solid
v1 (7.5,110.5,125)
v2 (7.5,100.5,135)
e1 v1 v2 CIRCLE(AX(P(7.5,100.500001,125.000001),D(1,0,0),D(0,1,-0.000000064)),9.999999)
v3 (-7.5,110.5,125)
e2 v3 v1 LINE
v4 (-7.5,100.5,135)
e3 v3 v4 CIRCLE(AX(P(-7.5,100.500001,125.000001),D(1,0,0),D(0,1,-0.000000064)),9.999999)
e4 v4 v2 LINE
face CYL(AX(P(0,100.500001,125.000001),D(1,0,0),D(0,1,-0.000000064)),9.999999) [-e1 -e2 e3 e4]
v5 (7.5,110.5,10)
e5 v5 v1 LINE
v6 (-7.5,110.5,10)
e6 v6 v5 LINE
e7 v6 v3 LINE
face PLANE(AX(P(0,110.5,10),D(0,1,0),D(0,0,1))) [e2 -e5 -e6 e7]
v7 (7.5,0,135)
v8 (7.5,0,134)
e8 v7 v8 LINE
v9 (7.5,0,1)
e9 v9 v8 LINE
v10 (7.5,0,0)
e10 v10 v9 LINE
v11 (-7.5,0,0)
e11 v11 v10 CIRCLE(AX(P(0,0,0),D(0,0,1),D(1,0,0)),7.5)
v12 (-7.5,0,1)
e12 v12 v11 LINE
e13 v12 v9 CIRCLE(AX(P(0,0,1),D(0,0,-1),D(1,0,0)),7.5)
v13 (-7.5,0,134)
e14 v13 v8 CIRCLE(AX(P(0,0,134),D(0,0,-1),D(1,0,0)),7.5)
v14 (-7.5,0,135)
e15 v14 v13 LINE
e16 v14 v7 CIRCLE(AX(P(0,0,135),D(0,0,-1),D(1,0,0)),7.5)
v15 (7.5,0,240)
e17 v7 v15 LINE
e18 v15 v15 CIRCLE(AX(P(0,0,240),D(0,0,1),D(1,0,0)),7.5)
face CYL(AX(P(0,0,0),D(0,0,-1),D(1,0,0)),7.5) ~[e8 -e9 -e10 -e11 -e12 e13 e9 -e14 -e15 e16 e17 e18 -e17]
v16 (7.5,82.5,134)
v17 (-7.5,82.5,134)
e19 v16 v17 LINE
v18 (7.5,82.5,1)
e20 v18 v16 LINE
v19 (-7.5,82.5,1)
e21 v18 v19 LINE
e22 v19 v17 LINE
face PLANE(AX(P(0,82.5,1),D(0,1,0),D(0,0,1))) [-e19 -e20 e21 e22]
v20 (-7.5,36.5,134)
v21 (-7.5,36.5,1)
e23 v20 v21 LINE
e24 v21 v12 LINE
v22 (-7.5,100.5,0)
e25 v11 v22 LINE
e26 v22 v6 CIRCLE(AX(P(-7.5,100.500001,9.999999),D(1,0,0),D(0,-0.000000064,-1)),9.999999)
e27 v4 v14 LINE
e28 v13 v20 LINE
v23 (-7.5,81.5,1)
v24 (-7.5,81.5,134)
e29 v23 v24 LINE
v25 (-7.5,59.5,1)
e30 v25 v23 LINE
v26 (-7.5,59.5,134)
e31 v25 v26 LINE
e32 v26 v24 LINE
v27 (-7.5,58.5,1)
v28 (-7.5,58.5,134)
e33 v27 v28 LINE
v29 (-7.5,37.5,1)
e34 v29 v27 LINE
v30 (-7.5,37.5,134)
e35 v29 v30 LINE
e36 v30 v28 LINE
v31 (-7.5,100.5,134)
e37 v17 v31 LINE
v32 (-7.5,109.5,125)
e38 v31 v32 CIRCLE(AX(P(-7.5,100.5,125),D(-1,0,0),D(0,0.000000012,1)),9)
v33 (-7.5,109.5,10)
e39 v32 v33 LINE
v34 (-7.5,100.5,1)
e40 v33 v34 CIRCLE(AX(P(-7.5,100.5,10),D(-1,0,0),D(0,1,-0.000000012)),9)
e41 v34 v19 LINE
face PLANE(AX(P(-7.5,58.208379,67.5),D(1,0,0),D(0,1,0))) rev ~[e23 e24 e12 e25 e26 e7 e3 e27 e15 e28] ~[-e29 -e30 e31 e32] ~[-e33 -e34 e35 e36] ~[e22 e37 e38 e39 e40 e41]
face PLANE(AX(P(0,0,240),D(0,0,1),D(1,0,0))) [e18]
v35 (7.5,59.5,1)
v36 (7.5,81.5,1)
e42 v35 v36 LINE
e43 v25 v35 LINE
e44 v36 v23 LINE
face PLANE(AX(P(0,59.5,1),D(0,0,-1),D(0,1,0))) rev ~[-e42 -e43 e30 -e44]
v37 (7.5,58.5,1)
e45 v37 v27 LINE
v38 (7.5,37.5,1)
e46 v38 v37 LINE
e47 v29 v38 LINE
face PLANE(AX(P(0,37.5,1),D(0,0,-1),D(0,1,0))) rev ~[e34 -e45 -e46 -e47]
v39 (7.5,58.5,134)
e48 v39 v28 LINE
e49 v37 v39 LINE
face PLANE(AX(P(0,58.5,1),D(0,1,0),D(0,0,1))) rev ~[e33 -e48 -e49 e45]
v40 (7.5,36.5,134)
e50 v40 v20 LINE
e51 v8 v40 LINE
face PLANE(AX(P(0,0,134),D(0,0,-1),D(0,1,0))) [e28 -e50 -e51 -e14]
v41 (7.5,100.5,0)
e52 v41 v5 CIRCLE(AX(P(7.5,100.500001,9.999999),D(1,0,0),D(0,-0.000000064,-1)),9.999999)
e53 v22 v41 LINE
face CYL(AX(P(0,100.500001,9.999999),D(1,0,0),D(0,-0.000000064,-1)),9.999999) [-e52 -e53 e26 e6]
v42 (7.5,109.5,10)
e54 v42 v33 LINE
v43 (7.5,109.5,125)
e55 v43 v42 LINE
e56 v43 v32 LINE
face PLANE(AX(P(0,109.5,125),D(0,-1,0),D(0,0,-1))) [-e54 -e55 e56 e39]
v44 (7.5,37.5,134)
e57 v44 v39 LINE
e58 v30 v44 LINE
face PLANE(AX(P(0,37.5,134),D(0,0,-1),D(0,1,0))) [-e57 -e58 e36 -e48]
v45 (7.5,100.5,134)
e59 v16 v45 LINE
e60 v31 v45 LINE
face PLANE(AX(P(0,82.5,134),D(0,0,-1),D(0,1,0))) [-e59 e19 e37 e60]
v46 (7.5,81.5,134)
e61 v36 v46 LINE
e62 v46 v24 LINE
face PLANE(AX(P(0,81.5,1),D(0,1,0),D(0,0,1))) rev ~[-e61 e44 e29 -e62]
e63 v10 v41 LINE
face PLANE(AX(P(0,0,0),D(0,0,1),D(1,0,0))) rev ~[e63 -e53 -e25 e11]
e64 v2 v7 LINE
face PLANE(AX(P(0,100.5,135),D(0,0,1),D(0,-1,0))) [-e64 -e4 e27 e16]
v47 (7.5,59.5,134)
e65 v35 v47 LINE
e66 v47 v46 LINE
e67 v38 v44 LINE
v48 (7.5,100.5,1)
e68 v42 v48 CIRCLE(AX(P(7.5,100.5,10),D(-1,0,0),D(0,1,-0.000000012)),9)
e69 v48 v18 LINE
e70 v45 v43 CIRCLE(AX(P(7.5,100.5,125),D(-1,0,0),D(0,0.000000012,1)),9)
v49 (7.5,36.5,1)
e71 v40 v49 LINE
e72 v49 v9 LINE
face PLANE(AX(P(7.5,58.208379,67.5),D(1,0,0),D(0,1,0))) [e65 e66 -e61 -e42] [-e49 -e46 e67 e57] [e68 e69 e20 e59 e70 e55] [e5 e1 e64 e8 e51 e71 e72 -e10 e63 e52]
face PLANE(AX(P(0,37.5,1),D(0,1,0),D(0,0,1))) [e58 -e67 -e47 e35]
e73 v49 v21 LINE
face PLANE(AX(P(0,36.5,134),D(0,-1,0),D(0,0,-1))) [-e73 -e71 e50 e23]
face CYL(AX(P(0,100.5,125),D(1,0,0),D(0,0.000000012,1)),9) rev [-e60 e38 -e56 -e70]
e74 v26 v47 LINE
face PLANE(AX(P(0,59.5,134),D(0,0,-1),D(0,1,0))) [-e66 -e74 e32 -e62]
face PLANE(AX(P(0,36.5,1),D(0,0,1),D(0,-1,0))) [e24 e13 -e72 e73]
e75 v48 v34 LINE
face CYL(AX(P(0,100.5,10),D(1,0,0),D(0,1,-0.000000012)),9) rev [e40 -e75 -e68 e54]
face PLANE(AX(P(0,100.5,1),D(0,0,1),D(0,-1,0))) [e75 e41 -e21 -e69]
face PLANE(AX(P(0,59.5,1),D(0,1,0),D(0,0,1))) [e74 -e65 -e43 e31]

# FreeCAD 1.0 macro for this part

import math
import FreeCAD as App
import Part
import Sketcher
from FreeCAD import Vector
Q = App.Units.Quantity


def add_polygon(sketch, points):
    """Adds a closed chain of lines whose ends are joined by coincident constraints."""
    first, n = sketch.GeometryCount, len(points)
    for a, b in zip(points, points[1:] + points[:1]):
        sketch.addGeometry(Part.LineSegment(App.Vector(*a, 0), App.Vector(*b, 0)), False)
    for i in range(n):
        sketch.addConstraint(Sketcher.Constraint("Coincident", first + i, 2, first + (i + 1) % n, 1))

doc = App.newDocument("Part")
body = doc.addObject("PartDesign::Body", "Body")

sketch1 = body.newObject("Sketcher::SketchObject", "Sketch")
sketch1.AttachmentSupport = (doc.getObject("XY_Plane"), [""])
sketch1.MapMode = "FlatFace"
sketch1.addGeometry(Part.Circle(Vector(0, 0, 0), Vector(0, 0, 1), 8), False)
sketch1.addConstraint(Sketcher.Constraint("Coincident", 0, 3, -1, 1))
sketch1.addConstraint(Sketcher.Constraint("Diameter", 0, Q("15 mm")))
pad1 = body.newObject("PartDesign::Pad", "Pad")
pad1.Profile = sketch1
pad1.Length = 240

sketch2 = body.newObject("Sketcher::SketchObject", "Sketch001")
sketch2.AttachmentSupport = (doc.getObject("YZ_Plane"), [""])
sketch2.MapMode = "FlatFace"
sketch2.addGeometry(Part.LineSegment(Vector(0, 1, 0), Vector(0, 0, 0)), False)
sketch2.addGeometry(Part.LineSegment(Vector(0, 0, 0), Vector(100.5, 0, 0)), False)
sketch2.addGeometry(Part.ArcOfCircle(Part.Circle(Vector(100.5, 10, 0), Vector(0, 0, 1), 10), math.radians(-90), math.radians(0)), False)
sketch2.addGeometry(Part.LineSegment(Vector(110.5, 10, 0), Vector(110.5, 125, 0)), False)
sketch2.addGeometry(Part.ArcOfCircle(Part.Circle(Vector(100.5, 125, 0), Vector(0, 0, 1), 10), math.radians(0), math.radians(90)), False)
sketch2.addGeometry(Part.LineSegment(Vector(100.5, 135, 0), Vector(0, 135, 0)), False)
sketch2.addGeometry(Part.LineSegment(Vector(0, 135, 0), Vector(0, 134, 0)), False)
sketch2.addGeometry(Part.LineSegment(Vector(0, 134, 0), Vector(36.5, 134, 0)), False)
sketch2.addGeometry(Part.LineSegment(Vector(36.5, 134, 0), Vector(36.5, 1, 0)), False)
sketch2.addGeometry(Part.LineSegment(Vector(36.5, 1, 0), Vector(0, 1, 0)), False)
add_polygon(sketch2, [(58.5, 1), (37.5, 1), (37.5, 134), (58.5, 134)])
add_polygon(sketch2, [(81.5, 1), (59.5, 1), (59.5, 134), (81.5, 134)])
sketch2.addGeometry(Part.LineSegment(Vector(82.5, 134, 0), Vector(100.5, 134, 0)), False)
sketch2.addGeometry(Part.ArcOfCircle(Part.Circle(Vector(100.5, 125, 0), Vector(0, 0, 1), 9), math.radians(0), math.radians(90)), False)
sketch2.addGeometry(Part.LineSegment(Vector(109.5, 125, 0), Vector(109.5, 10, 0)), False)
sketch2.addGeometry(Part.ArcOfCircle(Part.Circle(Vector(100.5, 10, 0), Vector(0, 0, 1), 9), math.radians(-90), math.radians(0)), False)
sketch2.addGeometry(Part.LineSegment(Vector(100.5, 1, 0), Vector(82.5, 1, 0)), False)
sketch2.addGeometry(Part.LineSegment(Vector(82.5, 1, 0), Vector(82.5, 134, 0)), False)
sketch2.addConstraint(Sketcher.Constraint("Coincident", 0, 2, 1, 1))
sketch2.addConstraint(Sketcher.Constraint("Tangent", 1, 2, 2, 1))
sketch2.addConstraint(Sketcher.Constraint("Tangent", 2, 2, 3, 1))
sketch2.addConstraint(Sketcher.Constraint("Tangent", 3, 2, 4, 1))
sketch2.addConstraint(Sketcher.Constraint("Tangent", 4, 2, 5, 1))
sketch2.addConstraint(Sketcher.Constraint("Coincident", 5, 2, 6, 1))
sketch2.addConstraint(Sketcher.Constraint("Coincident", 6, 2, 7, 1))
sketch2.addConstraint(Sketcher.Constraint("Coincident", 7, 2, 8, 1))
sketch2.addConstraint(Sketcher.Constraint("Coincident", 8, 2, 9, 1))
sketch2.addConstraint(Sketcher.Constraint("Coincident", 9, 2, 0, 1))
sketch2.addConstraint(Sketcher.Constraint("Tangent", 18, 2, 19, 2))
sketch2.addConstraint(Sketcher.Constraint("Tangent", 19, 1, 20, 1))
sketch2.addConstraint(Sketcher.Constraint("Tangent", 20, 2, 21, 2))
sketch2.addConstraint(Sketcher.Constraint("Tangent", 21, 1, 22, 1))
sketch2.addConstraint(Sketcher.Constraint("Coincident", 22, 2, 23, 1))
sketch2.addConstraint(Sketcher.Constraint("Coincident", 23, 2, 18, 1))
sketch2.addConstraint(Sketcher.Constraint("Vertical", 0))
sketch2.addConstraint(Sketcher.Constraint("Horizontal", 1))
sketch2.addConstraint(Sketcher.Constraint("Vertical", 3))
sketch2.addConstraint(Sketcher.Constraint("Horizontal", 5))
sketch2.addConstraint(Sketcher.Constraint("Vertical", 6))
sketch2.addConstraint(Sketcher.Constraint("Horizontal", 7))
sketch2.addConstraint(Sketcher.Constraint("Vertical", 8))
sketch2.addConstraint(Sketcher.Constraint("Horizontal", 9))
sketch2.addConstraint(Sketcher.Constraint("Horizontal", 10))
sketch2.addConstraint(Sketcher.Constraint("Vertical", 11))
sketch2.addConstraint(Sketcher.Constraint("Horizontal", 12))
sketch2.addConstraint(Sketcher.Constraint("Vertical", 13))
sketch2.addConstraint(Sketcher.Constraint("Horizontal", 14))
sketch2.addConstraint(Sketcher.Constraint("Vertical", 15))
sketch2.addConstraint(Sketcher.Constraint("Horizontal", 16))
sketch2.addConstraint(Sketcher.Constraint("Vertical", 17))
sketch2.addConstraint(Sketcher.Constraint("Horizontal", 18))
sketch2.addConstraint(Sketcher.Constraint("Vertical", 20))
sketch2.addConstraint(Sketcher.Constraint("Horizontal", 22))
sketch2.addConstraint(Sketcher.Constraint("Vertical", 23))
sketch2.addConstraint(Sketcher.Constraint("Coincident", 0, 2, -1, 1))
sketch2.addConstraint(Sketcher.Constraint("Coincident", 19, 3, 4, 3))
sketch2.addConstraint(Sketcher.Constraint("Coincident", 21, 3, 2, 3))
sketch2.addConstraint(Sketcher.Constraint("Equal", 2, 4))
sketch2.addConstraint(Sketcher.Constraint("PointOnObject", 5, 2, -2))
sketch2.addConstraint(Sketcher.Constraint("Horizontal", 9, 2, 10, 2))
sketch2.addConstraint(Sketcher.Constraint("Horizontal", 7, 2, 11, 2))
sketch2.addConstraint(Sketcher.Constraint("Horizontal", 13, 2, 14, 2))
sketch2.addConstraint(Sketcher.Constraint("Horizontal", 12, 2, 15, 2))
sketch2.addConstraint(Sketcher.Constraint("Horizontal", 16, 2, 18, 2))
sketch2.addConstraint(Sketcher.Constraint("Horizontal", 17, 2, 21, 1))
sketch2.addConstraint(Sketcher.Constraint("Radius", 2, Q("9.999999 mm")))
sketch2.addConstraint(Sketcher.Constraint("Radius", 19, Q("9 mm")))
sketch2.addConstraint(Sketcher.Constraint("DistanceX", 10, 2, 10, 1, Q("21 mm")))
sketch2.addConstraint(Sketcher.Constraint("DistanceX", 14, 2, 14, 1, Q("22 mm")))
sketch2.addConstraint(Sketcher.Constraint("DistanceX", 18, 1, 18, 2, Q("18 mm")))
sketch2.addConstraint(Sketcher.Constraint("DistanceY", 3, 1, 3, 2, Q("115 mm")))
sketch2.addConstraint(Sketcher.Constraint("DistanceX", 1, 1, 1, 2, Q("100.5 mm")))
sketch2.addConstraint(Sketcher.Constraint("DistanceX", 7, 1, 7, 2, Q("36.5 mm")))
sketch2.addConstraint(Sketcher.Constraint("DistanceX", 8, 2, 10, 2, Q("1 mm")))
sketch2.addConstraint(Sketcher.Constraint("DistanceX", 13, 2, 14, 2, Q("1 mm")))
pad2 = body.newObject("PartDesign::Pad", "Pad001")
pad2.Profile = sketch2
pad2.Length = 15
pad2.Midplane = True

doc.recompute()
